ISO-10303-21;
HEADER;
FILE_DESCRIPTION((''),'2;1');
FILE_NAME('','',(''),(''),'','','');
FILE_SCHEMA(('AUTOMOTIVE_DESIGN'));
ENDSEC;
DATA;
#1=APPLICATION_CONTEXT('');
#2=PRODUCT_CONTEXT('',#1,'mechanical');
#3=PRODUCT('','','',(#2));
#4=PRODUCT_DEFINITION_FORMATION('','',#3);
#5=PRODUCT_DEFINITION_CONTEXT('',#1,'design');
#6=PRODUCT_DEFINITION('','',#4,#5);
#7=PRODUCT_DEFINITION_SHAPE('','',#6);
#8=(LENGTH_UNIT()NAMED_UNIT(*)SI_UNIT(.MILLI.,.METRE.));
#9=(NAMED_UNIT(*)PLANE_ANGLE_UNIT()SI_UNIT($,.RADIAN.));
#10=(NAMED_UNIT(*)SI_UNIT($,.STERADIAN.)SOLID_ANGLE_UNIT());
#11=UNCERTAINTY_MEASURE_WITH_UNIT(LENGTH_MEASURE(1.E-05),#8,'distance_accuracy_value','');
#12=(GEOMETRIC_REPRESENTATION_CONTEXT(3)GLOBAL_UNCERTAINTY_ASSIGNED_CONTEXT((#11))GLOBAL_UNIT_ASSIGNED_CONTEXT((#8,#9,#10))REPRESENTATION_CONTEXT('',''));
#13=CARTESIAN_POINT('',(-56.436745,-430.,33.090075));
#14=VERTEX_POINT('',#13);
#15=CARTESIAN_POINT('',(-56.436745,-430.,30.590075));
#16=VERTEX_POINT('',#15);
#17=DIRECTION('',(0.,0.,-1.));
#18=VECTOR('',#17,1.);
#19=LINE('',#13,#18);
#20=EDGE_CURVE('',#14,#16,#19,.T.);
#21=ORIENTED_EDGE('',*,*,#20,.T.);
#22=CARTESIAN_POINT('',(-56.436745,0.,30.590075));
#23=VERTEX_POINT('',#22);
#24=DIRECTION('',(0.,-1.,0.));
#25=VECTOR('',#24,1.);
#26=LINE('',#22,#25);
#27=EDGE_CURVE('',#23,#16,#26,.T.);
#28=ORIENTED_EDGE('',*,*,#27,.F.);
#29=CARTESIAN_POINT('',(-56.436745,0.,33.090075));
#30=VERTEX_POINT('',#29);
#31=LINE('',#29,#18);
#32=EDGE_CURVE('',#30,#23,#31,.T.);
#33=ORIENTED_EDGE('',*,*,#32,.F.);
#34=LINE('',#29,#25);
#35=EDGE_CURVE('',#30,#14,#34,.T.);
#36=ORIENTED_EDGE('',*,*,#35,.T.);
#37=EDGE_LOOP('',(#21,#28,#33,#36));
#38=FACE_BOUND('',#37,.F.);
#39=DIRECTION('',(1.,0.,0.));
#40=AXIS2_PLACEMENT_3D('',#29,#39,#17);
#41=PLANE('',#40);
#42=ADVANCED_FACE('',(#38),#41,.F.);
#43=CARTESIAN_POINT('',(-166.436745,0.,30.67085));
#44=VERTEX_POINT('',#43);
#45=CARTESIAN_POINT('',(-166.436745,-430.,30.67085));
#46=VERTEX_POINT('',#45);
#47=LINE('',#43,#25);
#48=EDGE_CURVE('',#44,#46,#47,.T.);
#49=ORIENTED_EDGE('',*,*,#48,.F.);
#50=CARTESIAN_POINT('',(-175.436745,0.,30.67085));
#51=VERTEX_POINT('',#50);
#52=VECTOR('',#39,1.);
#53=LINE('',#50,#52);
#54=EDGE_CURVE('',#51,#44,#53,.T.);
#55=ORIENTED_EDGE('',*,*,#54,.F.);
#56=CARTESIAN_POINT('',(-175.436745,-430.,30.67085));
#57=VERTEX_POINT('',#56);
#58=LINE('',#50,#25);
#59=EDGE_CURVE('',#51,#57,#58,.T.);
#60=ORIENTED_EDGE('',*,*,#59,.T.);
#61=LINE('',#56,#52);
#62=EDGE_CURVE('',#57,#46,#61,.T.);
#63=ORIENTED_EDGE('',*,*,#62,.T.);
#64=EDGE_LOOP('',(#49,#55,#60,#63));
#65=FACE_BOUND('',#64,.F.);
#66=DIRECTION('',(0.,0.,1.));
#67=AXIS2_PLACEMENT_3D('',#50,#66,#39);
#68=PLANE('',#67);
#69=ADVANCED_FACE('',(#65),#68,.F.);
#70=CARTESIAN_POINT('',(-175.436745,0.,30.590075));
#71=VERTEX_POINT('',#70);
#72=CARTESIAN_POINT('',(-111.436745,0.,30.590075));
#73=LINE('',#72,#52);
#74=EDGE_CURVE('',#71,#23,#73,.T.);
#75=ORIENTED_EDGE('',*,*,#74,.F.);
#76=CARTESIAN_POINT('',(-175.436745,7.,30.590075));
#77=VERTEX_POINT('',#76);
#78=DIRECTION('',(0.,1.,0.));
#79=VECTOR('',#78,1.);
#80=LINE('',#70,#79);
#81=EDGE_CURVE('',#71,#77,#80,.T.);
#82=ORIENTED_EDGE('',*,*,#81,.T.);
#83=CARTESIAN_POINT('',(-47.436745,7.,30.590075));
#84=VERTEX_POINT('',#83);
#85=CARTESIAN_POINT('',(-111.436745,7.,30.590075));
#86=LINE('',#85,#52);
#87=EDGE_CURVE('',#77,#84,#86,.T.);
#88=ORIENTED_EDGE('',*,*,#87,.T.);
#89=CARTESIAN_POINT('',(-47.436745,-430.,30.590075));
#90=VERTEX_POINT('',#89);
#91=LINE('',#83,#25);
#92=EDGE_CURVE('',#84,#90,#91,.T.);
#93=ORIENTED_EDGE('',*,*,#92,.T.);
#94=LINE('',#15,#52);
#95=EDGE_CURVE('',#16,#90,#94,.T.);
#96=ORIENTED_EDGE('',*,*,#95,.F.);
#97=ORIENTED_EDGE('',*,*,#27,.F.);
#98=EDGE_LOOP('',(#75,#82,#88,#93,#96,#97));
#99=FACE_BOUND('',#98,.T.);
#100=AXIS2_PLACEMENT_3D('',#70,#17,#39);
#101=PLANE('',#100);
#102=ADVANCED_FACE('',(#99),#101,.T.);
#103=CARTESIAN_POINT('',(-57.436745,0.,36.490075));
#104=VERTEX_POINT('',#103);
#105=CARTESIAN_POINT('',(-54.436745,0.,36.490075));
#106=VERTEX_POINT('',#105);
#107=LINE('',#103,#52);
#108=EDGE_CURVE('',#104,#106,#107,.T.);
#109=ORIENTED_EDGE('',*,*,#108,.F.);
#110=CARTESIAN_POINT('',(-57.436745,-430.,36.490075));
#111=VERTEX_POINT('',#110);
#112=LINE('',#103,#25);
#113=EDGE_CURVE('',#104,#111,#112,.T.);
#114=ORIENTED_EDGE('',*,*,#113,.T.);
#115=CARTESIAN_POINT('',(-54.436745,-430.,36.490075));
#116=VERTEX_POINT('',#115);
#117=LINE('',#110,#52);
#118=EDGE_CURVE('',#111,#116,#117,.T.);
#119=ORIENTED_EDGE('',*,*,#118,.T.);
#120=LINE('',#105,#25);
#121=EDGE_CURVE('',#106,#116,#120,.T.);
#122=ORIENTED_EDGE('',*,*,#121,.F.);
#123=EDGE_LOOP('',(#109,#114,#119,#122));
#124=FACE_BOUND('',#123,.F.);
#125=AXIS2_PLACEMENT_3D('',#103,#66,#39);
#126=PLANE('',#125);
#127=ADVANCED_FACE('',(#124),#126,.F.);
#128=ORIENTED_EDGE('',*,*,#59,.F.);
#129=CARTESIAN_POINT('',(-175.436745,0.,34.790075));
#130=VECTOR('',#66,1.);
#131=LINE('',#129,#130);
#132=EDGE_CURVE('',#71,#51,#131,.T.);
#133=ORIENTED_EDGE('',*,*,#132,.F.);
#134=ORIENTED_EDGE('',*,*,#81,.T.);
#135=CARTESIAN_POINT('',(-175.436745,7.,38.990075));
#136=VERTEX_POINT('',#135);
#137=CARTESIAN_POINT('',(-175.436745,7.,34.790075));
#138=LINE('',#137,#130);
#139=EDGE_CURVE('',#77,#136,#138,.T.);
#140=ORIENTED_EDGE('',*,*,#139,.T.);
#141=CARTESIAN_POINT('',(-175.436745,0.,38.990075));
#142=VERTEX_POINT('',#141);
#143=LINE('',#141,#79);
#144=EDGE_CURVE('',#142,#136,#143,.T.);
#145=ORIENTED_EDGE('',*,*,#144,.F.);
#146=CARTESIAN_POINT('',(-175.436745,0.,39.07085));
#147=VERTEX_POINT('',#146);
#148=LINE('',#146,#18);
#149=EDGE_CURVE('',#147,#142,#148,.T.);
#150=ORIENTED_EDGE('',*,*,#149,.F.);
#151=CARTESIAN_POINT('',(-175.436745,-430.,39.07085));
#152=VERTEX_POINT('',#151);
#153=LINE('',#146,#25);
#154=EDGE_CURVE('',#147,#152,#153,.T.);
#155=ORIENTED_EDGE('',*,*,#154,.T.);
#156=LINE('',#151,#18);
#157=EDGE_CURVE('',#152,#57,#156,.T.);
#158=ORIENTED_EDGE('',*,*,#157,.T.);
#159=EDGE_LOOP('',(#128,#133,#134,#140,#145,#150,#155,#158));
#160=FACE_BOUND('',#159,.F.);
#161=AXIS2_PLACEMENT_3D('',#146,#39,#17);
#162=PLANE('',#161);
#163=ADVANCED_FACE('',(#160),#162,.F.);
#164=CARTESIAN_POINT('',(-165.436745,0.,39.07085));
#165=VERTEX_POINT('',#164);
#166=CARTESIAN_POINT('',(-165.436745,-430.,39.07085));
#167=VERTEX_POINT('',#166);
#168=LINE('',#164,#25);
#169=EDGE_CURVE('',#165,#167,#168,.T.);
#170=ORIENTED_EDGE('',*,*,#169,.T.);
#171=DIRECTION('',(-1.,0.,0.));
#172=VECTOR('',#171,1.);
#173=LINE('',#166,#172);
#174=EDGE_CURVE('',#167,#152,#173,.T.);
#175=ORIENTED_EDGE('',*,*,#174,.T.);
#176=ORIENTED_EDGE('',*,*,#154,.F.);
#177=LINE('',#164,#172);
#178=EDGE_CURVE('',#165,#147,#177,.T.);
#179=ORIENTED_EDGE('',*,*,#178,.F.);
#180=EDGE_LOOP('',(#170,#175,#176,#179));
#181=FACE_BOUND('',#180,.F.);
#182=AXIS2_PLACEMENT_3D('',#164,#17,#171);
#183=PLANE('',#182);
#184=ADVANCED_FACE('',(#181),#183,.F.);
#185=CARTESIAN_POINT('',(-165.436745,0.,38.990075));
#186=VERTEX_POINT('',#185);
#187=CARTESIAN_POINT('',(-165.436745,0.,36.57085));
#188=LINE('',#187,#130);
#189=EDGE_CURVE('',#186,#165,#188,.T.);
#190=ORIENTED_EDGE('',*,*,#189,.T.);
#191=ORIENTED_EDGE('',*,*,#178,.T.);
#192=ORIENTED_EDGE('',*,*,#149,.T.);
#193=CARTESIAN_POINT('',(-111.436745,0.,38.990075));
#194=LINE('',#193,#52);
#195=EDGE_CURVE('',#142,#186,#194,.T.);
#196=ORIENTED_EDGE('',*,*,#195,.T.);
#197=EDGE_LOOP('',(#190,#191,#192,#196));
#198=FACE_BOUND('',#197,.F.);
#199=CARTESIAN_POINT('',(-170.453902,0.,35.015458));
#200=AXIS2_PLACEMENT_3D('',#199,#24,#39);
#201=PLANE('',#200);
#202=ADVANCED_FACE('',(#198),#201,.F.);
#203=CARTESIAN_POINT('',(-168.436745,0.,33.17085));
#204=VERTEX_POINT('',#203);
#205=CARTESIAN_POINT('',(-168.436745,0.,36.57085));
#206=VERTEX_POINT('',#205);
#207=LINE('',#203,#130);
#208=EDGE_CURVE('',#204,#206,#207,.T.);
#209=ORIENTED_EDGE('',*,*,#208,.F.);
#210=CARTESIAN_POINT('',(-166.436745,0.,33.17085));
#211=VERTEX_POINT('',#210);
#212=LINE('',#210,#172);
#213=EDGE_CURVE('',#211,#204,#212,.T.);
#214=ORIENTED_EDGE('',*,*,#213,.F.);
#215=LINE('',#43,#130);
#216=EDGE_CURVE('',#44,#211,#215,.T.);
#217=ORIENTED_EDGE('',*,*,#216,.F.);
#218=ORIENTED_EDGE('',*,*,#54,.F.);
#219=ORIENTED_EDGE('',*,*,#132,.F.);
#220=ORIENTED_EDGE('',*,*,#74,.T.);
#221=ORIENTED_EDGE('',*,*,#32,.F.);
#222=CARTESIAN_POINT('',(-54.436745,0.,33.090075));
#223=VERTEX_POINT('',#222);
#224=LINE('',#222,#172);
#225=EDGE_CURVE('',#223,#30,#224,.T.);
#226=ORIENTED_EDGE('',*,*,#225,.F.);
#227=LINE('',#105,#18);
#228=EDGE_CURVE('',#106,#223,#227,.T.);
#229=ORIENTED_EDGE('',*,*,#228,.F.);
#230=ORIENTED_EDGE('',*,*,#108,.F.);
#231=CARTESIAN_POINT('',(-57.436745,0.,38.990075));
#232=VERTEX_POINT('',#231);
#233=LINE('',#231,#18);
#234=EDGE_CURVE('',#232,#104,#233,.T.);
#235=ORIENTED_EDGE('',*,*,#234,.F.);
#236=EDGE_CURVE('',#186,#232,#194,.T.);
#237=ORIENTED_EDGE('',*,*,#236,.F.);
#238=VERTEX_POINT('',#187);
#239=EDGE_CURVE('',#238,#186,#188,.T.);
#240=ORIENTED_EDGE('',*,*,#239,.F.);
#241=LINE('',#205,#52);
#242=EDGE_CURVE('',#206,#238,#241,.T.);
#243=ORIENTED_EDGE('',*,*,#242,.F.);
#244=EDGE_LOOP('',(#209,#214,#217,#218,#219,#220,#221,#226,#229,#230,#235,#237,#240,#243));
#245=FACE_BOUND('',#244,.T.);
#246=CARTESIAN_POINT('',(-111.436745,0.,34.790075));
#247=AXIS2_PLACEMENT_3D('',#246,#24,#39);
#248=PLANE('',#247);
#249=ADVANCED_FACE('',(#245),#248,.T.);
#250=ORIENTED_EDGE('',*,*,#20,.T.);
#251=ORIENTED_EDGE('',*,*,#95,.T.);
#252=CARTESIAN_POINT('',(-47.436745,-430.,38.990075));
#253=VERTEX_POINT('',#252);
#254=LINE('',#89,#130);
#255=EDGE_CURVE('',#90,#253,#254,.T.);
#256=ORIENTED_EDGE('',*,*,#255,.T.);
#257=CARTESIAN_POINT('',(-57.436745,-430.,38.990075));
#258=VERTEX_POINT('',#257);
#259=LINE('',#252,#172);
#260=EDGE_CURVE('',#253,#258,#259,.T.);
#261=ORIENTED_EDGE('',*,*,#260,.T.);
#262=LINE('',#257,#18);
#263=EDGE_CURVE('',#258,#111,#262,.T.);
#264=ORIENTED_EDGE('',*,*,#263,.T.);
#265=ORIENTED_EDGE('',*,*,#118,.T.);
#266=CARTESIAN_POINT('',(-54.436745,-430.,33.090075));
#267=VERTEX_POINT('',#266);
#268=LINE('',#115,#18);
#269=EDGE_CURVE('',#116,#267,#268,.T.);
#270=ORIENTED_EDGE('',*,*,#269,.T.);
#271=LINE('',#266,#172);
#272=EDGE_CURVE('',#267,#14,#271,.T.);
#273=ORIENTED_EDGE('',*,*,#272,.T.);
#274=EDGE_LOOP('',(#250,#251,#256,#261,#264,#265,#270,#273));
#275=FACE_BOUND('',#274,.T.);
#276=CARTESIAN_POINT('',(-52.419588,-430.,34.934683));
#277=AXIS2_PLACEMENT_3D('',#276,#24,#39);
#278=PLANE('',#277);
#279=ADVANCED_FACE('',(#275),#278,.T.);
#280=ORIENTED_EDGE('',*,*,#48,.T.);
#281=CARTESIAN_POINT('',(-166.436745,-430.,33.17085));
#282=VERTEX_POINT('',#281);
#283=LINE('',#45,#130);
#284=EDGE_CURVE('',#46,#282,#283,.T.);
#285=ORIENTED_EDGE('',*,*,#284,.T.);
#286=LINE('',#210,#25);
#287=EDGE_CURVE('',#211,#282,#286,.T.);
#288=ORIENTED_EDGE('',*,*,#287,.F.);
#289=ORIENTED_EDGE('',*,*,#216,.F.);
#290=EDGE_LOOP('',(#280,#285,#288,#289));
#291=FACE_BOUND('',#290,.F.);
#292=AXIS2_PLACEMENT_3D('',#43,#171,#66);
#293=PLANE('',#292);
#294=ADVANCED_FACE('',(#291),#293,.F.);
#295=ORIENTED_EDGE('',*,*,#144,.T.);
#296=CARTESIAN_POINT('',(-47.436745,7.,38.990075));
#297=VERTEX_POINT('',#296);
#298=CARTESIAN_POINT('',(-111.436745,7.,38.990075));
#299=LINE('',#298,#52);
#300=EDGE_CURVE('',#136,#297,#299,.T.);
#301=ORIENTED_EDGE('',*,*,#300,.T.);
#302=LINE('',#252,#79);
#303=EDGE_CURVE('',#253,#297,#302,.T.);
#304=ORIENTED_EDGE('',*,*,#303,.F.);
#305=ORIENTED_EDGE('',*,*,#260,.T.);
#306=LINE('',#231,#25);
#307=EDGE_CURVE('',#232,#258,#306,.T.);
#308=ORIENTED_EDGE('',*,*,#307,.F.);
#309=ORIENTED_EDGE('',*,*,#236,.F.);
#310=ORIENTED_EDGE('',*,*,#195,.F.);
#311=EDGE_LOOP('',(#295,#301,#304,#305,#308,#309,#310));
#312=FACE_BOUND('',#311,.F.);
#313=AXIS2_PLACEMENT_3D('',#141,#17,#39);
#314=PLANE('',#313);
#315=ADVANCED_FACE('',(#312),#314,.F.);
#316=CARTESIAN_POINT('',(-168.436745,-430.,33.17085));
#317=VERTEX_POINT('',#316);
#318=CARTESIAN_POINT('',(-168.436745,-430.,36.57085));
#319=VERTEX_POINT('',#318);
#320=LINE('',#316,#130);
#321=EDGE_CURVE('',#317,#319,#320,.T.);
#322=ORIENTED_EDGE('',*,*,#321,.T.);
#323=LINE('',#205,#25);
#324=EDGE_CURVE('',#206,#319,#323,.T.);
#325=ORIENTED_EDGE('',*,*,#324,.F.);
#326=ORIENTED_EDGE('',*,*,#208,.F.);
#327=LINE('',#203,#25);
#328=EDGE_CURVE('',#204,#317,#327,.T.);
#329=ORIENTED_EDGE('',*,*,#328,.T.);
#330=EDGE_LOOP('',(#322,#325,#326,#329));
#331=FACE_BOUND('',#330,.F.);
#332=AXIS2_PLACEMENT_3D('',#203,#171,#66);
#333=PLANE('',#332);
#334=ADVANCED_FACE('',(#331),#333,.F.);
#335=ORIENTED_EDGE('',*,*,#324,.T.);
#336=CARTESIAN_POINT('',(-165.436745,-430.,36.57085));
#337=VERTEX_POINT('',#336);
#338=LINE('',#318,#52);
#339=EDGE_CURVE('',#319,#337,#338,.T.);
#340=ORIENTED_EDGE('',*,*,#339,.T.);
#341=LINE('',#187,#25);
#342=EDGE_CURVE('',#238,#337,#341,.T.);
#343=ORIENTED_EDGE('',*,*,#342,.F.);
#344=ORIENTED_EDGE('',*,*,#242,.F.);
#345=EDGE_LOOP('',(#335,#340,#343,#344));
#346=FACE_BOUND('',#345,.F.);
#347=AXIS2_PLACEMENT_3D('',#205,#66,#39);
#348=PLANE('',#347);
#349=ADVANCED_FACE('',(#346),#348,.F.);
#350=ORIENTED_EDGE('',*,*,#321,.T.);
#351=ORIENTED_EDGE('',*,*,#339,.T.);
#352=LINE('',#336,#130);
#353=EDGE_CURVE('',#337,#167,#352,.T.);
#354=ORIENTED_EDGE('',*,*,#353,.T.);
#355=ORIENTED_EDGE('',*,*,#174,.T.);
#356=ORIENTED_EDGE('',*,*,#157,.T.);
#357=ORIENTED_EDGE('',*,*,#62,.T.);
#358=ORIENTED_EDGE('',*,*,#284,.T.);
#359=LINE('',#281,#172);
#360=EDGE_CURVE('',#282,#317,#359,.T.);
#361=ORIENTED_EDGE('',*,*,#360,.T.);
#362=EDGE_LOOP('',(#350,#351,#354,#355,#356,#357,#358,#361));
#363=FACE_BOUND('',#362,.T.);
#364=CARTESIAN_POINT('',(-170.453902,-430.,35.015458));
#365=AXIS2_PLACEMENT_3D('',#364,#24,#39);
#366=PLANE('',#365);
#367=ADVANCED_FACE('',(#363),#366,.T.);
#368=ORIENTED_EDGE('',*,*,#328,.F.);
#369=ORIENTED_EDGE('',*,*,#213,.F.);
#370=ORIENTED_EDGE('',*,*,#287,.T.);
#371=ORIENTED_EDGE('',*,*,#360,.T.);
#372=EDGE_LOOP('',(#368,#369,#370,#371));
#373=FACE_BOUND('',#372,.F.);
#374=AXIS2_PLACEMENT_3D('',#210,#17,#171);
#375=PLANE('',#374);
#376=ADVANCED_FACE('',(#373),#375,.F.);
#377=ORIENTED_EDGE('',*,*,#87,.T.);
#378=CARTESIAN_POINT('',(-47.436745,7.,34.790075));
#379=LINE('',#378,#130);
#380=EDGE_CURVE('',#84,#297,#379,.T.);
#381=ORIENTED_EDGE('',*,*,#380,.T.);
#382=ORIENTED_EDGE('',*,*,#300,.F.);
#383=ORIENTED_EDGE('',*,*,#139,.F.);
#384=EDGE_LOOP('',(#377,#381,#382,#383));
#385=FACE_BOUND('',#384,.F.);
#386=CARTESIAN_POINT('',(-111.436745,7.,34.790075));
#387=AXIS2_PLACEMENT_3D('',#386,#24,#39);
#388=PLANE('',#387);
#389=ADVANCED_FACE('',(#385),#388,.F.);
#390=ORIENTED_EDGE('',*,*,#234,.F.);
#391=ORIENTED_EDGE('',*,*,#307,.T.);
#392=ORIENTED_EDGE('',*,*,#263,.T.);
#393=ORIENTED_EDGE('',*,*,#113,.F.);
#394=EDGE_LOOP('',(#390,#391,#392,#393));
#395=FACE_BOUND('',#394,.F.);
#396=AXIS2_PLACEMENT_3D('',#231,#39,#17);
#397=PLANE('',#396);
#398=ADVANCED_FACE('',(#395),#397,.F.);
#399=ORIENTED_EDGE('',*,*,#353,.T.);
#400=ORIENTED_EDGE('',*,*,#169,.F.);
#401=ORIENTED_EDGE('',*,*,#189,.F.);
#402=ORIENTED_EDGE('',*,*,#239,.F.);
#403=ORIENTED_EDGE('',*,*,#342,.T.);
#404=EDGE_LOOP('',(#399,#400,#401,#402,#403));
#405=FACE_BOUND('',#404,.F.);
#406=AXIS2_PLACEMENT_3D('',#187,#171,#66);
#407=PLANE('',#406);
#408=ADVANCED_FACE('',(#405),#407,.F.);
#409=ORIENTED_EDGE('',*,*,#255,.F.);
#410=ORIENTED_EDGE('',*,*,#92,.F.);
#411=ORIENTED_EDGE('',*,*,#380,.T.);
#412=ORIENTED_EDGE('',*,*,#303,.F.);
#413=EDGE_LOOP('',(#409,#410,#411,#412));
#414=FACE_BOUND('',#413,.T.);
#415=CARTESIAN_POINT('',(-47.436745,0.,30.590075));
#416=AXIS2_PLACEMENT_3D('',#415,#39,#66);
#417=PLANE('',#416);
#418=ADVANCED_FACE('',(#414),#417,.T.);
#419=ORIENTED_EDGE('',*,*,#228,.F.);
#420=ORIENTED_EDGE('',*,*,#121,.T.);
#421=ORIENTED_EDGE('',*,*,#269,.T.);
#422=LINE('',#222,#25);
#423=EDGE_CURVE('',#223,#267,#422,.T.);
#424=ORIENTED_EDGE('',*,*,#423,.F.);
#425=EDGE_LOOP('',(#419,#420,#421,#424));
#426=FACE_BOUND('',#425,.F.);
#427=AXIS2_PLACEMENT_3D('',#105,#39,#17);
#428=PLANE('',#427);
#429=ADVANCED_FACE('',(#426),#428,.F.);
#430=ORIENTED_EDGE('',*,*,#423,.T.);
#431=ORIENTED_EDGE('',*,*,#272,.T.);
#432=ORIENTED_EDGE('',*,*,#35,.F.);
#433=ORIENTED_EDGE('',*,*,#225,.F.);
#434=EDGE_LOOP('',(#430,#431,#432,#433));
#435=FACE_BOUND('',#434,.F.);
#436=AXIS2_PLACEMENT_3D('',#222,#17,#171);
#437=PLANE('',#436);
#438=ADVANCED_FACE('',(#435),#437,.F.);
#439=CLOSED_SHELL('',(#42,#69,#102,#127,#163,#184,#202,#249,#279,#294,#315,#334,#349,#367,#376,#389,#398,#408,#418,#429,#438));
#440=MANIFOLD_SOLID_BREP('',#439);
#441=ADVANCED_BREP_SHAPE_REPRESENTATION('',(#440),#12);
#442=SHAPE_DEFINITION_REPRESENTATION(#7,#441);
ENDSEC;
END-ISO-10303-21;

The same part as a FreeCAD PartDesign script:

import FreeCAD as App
import Part
import Sketcher

V = App.Vector
Q = App.Units.Quantity

doc = App.newDocument("Part")
body = doc.addObject("PartDesign::Body", "Body")

sketch1 = body.newObject("Sketcher::SketchObject", "Sketch")
sketch1.AttachmentSupport = (doc.getObject("XZ_Plane"), [""])
sketch1.MapMode = "FlatFace"
sketch1.addGeometry([
    Part.LineSegment(V(-47.436745, 38.990075, 0), V(-57.436745, 38.990075, 0)),
    Part.LineSegment(V(-57.436745, 38.990075, 0), V(-57.436745, 36.490075, 0)),
    Part.LineSegment(V(-57.436745, 36.490075, 0), V(-54.436745, 36.490075, 0)),
    Part.LineSegment(V(-54.436745, 36.490075, 0), V(-54.436745, 33.090075, 0)),
    Part.LineSegment(V(-54.436745, 33.090075, 0), V(-56.436745, 33.090075, 0)),
    Part.LineSegment(V(-56.436745, 33.090075, 0), V(-56.436745, 30.590075, 0)),
    Part.LineSegment(V(-56.436745, 30.590075, 0), V(-47.436745, 30.590075, 0)),
    Part.LineSegment(V(-47.436745, 30.590075, 0), V(-47.436745, 38.990075, 0)),
], False)
sketch1.addConstraint([
    Sketcher.Constraint("Coincident", 0, 2, 1, 1),
    Sketcher.Constraint("Coincident", 1, 2, 2, 1),
    Sketcher.Constraint("Coincident", 2, 2, 3, 1),
    Sketcher.Constraint("Coincident", 3, 2, 4, 1),
    Sketcher.Constraint("Coincident", 4, 2, 5, 1),
    Sketcher.Constraint("Coincident", 5, 2, 6, 1),
    Sketcher.Constraint("Coincident", 6, 2, 7, 1),
    Sketcher.Constraint("Coincident", 7, 2, 0, 1),
    Sketcher.Constraint("Horizontal", 0),
    Sketcher.Constraint("Vertical", 1),
    Sketcher.Constraint("Horizontal", 2),
    Sketcher.Constraint("Vertical", 3),
    Sketcher.Constraint("Horizontal", 4),
    Sketcher.Constraint("Vertical", 5),
    Sketcher.Constraint("Horizontal", 6),
    Sketcher.Constraint("Vertical", 7),
    Sketcher.Constraint("Equal", 1, 5),
    Sketcher.Constraint("DistanceX", 0, 2, 0, 1, Q("10 mm")),
    Sketcher.Constraint("DistanceX", 2, 1, 2, 2, Q("3 mm")),
    Sketcher.Constraint("DistanceX", 4, 2, 4, 1, Q("2 mm")),
    Sketcher.Constraint("DistanceY", 1, 2, 1, 1, Q("2.5 mm")),
    Sketcher.Constraint("DistanceY", 3, 2, 3, 1, Q("3.4 mm")),
    Sketcher.Constraint("DistanceX", 0, 2, -1, 1, Q("57.436745 mm")),
    Sketcher.Constraint("DistanceY", -1, 1, 0, 2, Q("38.990075 mm")),
])
pad1 = body.newObject("PartDesign::Pad", "Pad")
pad1.Profile = sketch1
pad1.Length = 430

sketch2 = body.newObject("Sketcher::SketchObject", "Sketch001")
sketch2.AttachmentSupport = (doc.getObject("XZ_Plane"), [""])
sketch2.MapMode = "FlatFace"
sketch2.addGeometry([
    Part.LineSegment(V(-175.436745, 38.990075, 0), V(-175.436745, 30.590075, 0)),
    Part.LineSegment(V(-175.436745, 30.590075, 0), V(-47.436745, 30.590075, 0)),
    Part.LineSegment(V(-47.436745, 30.590075, 0), V(-47.436745, 38.990075, 0)),
    Part.LineSegment(V(-47.436745, 38.990075, 0), V(-175.436745, 38.990075, 0)),
], False)
sketch2.addConstraint([
    Sketcher.Constraint("Coincident", 0, 2, 1, 1),
    Sketcher.Constraint("Coincident", 1, 2, 2, 1),
    Sketcher.Constraint("Coincident", 2, 2, 3, 1),
    Sketcher.Constraint("Coincident", 3, 2, 0, 1),
    Sketcher.Constraint("Vertical", 0),
    Sketcher.Constraint("Horizontal", 1),
    Sketcher.Constraint("Vertical", 2),
    Sketcher.Constraint("Horizontal", 3),
    Sketcher.Constraint("DistanceX", 1, 1, 1, 2, Q("128 mm")),
    Sketcher.Constraint("DistanceY", 0, 2, 0, 1, Q("8.4 mm")),
    Sketcher.Constraint("DistanceX", 0, 2, -1, 1, Q("175.436745 mm")),
    Sketcher.Constraint("DistanceY", -1, 1, 0, 2, Q("30.590075 mm")),
])
pad2 = body.newObject("PartDesign::Pad", "Pad001")
pad2.Profile = sketch2
pad2.Length = 7
pad2.Reversed = True

sketch3 = body.newObject("Sketcher::SketchObject", "Sketch002")
sketch3.AttachmentSupport = (doc.getObject("XZ_Plane"), [""])
sketch3.MapMode = "FlatFace"
sketch3.addGeometry([
    Part.LineSegment(V(-165.436745, 36.57085, 0), V(-165.436745, 39.07085, 0)),
    Part.LineSegment(V(-165.436745, 39.07085, 0), V(-175.436745, 39.07085, 0)),
    Part.LineSegment(V(-175.436745, 39.07085, 0), V(-175.436745, 30.67085, 0)),
    Part.LineSegment(V(-175.436745, 30.67085, 0), V(-166.436745, 30.67085, 0)),
    Part.LineSegment(V(-166.436745, 30.67085, 0), V(-166.436745, 33.17085, 0)),
    Part.LineSegment(V(-166.436745, 33.17085, 0), V(-168.436745, 33.17085, 0)),
    Part.LineSegment(V(-168.436745, 33.17085, 0), V(-168.436745, 36.57085, 0)),
    Part.LineSegment(V(-168.436745, 36.57085, 0), V(-165.436745, 36.57085, 0)),
], False)
sketch3.addConstraint([
    Sketcher.Constraint("Coincident", 0, 2, 1, 1),
    Sketcher.Constraint("Coincident", 1, 2, 2, 1),
    Sketcher.Constraint("Coincident", 2, 2, 3, 1),
    Sketcher.Constraint("Coincident", 3, 2, 4, 1),
    Sketcher.Constraint("Coincident", 4, 2, 5, 1),
    Sketcher.Constraint("Coincident", 5, 2, 6, 1),
    Sketcher.Constraint("Coincident", 6, 2, 7, 1),
    Sketcher.Constraint("Coincident", 7, 2, 0, 1),
    Sketcher.Constraint("Vertical", 0),
    Sketcher.Constraint("Horizontal", 1),
    Sketcher.Constraint("Vertical", 2),
    Sketcher.Constraint("Horizontal", 3),
    Sketcher.Constraint("Vertical", 4),
    Sketcher.Constraint("Horizontal", 5),
    Sketcher.Constraint("Vertical", 6),
    Sketcher.Constraint("Horizontal", 7),
    Sketcher.Constraint("Equal", 0, 4),
    Sketcher.Constraint("DistanceX", 1, 2, 1, 1, Q("10 mm")),
    Sketcher.Constraint("DistanceX", 3, 1, 3, 2, Q("9 mm")),
    Sketcher.Constraint("DistanceX", 5, 2, 5, 1, Q("2 mm")),
    Sketcher.Constraint("DistanceY", 0, 1, 0, 2, Q("2.5 mm")),
    Sketcher.Constraint("DistanceY", 2, 2, 2, 1, Q("8.4 mm")),
    Sketcher.Constraint("DistanceY", -1, 1, 0, 2, Q("39.07085 mm")),
    Sketcher.Constraint("DistanceX", 0, 2, -1, 1, Q("165.436745 mm")),
])
pad3 = body.newObject("PartDesign::Pad", "Pad002")
pad3.Profile = sketch3
pad3.Length = 430

doc.recompute()
